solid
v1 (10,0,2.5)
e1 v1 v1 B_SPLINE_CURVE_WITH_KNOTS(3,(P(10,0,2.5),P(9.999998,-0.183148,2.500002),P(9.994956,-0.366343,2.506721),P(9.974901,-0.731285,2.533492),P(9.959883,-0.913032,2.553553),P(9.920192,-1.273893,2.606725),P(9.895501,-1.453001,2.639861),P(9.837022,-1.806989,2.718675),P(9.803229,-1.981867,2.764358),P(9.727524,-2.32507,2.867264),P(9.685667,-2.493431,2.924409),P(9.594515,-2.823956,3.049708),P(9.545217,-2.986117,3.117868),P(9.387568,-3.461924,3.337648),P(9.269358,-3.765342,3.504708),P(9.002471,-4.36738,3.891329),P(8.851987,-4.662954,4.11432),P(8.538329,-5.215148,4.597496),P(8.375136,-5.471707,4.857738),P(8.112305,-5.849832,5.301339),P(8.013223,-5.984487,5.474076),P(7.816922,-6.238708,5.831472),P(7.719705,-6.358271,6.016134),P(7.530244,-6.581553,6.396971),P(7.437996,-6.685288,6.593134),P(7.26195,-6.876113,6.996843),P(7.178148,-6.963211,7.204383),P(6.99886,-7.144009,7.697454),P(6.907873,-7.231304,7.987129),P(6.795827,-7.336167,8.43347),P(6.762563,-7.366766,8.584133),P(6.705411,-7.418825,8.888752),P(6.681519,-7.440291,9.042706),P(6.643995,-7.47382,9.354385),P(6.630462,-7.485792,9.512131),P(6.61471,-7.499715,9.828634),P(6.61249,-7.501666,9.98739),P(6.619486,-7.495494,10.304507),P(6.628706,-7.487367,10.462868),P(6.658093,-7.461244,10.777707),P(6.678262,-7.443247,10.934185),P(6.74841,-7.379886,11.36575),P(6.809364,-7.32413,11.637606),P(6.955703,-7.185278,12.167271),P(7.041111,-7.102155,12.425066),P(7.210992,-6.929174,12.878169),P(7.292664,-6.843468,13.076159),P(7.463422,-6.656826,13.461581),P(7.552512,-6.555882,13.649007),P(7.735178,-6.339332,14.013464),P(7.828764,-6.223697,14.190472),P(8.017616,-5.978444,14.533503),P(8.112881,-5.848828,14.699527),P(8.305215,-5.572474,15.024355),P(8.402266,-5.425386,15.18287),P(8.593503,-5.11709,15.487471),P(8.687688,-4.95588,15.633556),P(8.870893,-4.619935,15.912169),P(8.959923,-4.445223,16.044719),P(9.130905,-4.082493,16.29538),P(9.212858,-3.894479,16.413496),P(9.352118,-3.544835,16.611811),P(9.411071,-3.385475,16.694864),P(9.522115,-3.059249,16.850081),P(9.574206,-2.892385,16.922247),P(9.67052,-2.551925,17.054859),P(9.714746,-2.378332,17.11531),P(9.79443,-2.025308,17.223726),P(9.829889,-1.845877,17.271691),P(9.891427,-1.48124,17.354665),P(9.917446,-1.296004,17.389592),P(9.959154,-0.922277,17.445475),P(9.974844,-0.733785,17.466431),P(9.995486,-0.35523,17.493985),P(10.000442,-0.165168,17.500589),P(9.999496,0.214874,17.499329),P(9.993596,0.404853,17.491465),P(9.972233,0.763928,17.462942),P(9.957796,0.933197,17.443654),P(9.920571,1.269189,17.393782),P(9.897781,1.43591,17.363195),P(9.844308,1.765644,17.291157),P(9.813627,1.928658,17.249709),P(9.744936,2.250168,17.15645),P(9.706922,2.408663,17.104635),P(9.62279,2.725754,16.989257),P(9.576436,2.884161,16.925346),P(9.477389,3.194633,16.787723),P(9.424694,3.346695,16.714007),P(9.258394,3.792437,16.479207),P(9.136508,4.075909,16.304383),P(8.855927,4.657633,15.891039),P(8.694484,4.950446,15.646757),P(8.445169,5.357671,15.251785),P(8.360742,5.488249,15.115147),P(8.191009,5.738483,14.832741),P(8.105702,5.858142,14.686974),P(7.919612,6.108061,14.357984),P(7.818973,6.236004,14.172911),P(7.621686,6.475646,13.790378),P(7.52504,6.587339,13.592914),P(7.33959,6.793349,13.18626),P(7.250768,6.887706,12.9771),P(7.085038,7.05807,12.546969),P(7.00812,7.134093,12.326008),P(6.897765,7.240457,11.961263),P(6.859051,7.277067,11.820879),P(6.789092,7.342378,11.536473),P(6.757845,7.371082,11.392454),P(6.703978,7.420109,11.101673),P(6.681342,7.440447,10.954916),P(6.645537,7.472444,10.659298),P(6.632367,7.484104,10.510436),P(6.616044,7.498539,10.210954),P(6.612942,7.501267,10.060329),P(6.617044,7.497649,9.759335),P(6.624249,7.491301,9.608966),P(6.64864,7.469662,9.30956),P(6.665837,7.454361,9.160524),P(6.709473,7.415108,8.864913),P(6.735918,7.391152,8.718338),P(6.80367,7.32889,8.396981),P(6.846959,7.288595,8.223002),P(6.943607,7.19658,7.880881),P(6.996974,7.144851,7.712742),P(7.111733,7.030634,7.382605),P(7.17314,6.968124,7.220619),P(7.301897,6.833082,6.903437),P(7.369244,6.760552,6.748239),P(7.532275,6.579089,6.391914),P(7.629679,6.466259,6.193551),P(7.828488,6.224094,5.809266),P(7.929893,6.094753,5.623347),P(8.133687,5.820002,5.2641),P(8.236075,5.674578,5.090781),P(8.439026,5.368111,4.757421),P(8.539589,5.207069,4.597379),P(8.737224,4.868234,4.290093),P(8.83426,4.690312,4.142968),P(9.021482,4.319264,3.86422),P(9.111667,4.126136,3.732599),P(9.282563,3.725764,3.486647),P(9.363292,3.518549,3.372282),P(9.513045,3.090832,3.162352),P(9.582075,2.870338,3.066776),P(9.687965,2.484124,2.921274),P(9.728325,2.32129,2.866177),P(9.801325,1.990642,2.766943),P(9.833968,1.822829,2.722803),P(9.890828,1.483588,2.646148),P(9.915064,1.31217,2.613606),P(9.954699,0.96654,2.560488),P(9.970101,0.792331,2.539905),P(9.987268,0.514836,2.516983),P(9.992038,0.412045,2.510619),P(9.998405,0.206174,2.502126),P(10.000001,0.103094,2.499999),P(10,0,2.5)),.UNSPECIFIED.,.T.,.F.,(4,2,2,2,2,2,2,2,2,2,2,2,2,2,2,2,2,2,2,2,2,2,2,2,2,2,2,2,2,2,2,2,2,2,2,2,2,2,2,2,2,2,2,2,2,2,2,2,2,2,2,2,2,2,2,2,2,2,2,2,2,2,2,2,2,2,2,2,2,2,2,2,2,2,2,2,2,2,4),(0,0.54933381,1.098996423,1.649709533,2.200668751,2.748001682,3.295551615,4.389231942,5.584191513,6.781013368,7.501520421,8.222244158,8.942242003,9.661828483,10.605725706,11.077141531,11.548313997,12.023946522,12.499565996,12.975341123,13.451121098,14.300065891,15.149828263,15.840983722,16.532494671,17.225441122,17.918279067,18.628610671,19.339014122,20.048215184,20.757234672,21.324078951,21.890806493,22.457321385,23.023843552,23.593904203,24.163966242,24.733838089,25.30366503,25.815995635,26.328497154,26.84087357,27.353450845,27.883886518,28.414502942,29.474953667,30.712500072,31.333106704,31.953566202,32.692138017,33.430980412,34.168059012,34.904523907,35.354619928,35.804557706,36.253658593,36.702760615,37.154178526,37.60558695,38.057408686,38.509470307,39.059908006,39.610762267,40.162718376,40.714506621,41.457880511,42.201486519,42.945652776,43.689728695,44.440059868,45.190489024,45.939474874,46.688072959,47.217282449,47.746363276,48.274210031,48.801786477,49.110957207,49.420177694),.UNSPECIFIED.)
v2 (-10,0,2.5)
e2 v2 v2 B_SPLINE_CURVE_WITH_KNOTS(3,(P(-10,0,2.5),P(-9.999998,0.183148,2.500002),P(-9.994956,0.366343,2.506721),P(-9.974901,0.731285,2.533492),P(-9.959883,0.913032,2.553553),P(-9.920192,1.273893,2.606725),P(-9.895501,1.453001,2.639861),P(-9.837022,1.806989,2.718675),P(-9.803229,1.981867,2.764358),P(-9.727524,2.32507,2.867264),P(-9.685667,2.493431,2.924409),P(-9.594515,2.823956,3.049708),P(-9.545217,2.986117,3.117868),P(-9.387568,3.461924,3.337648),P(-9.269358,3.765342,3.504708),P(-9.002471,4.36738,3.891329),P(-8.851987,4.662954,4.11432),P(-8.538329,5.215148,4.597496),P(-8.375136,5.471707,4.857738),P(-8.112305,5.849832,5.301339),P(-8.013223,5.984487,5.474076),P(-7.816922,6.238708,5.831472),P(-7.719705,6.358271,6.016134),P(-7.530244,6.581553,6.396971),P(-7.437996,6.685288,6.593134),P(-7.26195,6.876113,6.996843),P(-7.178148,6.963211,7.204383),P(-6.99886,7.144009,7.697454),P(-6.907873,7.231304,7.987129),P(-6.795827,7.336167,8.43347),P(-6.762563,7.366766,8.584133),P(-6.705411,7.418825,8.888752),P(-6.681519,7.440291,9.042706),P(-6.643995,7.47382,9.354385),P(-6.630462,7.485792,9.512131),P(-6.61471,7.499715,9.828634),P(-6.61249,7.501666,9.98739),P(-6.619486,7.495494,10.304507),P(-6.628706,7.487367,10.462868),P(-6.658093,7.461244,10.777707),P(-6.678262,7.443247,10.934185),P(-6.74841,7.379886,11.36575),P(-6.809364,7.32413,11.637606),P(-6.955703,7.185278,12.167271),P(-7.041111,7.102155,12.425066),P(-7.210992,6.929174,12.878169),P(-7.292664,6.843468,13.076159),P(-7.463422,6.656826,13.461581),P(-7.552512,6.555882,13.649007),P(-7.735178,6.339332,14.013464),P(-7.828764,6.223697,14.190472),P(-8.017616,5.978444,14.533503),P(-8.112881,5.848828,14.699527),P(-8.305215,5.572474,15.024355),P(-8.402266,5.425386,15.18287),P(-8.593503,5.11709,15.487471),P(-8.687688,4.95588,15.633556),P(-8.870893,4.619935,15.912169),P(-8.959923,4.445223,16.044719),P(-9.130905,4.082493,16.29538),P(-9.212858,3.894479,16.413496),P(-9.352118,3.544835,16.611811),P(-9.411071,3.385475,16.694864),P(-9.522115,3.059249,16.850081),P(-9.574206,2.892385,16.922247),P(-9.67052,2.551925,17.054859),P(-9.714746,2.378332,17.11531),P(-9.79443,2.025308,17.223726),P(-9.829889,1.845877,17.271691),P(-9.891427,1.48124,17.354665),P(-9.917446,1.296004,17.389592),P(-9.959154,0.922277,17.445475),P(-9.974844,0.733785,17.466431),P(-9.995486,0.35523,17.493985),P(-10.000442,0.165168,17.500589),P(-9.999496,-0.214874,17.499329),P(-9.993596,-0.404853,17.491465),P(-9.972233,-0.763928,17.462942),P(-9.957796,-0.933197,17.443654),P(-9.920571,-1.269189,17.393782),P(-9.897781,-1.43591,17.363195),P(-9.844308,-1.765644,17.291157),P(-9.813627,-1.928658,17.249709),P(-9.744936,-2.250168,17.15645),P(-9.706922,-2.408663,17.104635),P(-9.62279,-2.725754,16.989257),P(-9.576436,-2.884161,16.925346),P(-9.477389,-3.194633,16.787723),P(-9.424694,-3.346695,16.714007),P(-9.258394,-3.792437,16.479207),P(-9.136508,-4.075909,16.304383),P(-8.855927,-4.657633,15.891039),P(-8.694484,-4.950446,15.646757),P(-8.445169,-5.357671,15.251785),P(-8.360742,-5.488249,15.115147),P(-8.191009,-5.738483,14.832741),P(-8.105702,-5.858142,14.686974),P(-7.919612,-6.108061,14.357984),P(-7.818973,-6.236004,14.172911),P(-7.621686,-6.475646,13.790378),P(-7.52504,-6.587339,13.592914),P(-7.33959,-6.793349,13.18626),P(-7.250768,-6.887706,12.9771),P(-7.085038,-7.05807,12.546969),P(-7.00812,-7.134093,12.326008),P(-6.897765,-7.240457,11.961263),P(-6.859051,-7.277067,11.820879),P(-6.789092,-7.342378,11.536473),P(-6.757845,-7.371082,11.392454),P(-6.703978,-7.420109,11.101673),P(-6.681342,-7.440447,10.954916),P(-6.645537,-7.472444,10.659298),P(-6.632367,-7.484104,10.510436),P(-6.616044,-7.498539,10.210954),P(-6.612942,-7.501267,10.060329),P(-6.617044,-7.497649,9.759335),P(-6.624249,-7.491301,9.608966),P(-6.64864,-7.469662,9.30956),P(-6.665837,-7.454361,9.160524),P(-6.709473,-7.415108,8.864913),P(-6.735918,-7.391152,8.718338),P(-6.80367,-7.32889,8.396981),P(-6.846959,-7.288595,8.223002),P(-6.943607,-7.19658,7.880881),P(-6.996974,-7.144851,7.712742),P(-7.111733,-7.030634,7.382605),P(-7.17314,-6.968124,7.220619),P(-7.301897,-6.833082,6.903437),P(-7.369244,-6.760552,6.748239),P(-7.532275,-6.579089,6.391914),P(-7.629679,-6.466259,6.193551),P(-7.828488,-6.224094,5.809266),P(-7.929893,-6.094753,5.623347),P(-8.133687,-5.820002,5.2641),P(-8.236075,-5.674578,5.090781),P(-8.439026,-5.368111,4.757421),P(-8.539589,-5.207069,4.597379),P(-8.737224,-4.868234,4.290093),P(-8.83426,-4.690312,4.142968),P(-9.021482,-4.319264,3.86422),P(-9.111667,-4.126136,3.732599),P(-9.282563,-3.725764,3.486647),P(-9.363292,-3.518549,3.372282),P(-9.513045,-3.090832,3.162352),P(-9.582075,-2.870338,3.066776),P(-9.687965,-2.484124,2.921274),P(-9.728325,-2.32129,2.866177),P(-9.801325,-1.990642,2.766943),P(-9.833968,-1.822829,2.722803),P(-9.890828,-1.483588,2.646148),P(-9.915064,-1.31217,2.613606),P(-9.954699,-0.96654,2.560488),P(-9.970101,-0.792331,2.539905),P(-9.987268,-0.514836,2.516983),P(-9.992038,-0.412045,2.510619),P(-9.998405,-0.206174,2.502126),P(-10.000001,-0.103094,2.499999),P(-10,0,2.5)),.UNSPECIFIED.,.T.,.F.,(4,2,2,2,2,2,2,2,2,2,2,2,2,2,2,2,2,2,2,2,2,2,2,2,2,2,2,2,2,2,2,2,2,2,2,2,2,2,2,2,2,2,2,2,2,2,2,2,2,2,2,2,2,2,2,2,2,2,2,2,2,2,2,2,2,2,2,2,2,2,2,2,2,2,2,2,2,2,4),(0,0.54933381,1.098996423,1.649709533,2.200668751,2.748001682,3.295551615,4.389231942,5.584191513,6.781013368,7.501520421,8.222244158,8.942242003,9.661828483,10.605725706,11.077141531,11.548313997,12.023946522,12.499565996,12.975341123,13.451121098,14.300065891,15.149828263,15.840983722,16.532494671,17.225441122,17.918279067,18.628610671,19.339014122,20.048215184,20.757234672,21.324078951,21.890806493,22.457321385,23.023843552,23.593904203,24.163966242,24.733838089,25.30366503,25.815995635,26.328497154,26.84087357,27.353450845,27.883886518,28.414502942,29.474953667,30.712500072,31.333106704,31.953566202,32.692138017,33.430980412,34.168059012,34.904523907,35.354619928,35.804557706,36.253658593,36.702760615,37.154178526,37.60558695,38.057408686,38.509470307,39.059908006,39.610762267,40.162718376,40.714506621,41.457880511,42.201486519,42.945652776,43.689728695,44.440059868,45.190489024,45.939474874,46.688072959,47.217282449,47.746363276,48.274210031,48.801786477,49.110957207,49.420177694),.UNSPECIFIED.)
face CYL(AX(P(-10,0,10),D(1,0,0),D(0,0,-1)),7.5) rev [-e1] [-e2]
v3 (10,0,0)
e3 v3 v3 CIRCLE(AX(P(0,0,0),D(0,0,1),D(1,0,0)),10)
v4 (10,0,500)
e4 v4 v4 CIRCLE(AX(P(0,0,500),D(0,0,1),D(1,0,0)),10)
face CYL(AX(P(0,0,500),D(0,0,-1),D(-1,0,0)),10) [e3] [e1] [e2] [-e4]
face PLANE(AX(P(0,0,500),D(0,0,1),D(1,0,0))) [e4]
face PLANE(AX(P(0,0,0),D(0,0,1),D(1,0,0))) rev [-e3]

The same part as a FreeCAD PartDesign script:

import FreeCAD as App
import Part
import Sketcher

V = App.Vector
Q = App.Units.Quantity

doc = App.newDocument("Part")
body = doc.addObject("PartDesign::Body", "Body")

# Sketch on XY plane
sketch1 = body.newObject("Sketcher::SketchObject", "Sketch")
sketch1.AttachmentSupport = (doc.getObject("XY_Plane"), [""])
sketch1.MapMode = "FlatFace"
sketch1.addGeometry(Part.Circle(V(0, 0, 0), V(0, 0, 1), 10), False)
sketch1.addConstraint(Sketcher.Constraint("Coincident", 0, 3, -1, 1))
sketch1.addConstraint(Sketcher.Constraint("Diameter", 0, Q("20 mm")))
pad1 = body.newObject("PartDesign::Pad", "Pad")
pad1.Profile = sketch1
pad1.Length = 500

# Sketch on YZ plane
sketch2 = body.newObject("Sketcher::SketchObject", "Sketch001")
sketch2.AttachmentSupport = (doc.getObject("YZ_Plane"), [""])
sketch2.MapMode = "FlatFace"
sketch2.addGeometry(Part.Circle(V(0, 10, 0), V(0, 0, 1), 8), False)
sketch2.addConstraint(Sketcher.Constraint("PointOnObject", 0, 3, -2))
sketch2.addConstraint(Sketcher.Constraint("Diameter", 0, Q("15 mm")))
sketch2.addConstraint(Sketcher.Constraint("DistanceY", -1, 1, 0, 3, Q("10 mm")))
pocket1 = body.newObject("PartDesign::Pocket", "Pocket")
pocket1.Profile = sketch2
pocket1.Type = "ThroughAll"
pocket1.Midplane = True

doc.recompute()
